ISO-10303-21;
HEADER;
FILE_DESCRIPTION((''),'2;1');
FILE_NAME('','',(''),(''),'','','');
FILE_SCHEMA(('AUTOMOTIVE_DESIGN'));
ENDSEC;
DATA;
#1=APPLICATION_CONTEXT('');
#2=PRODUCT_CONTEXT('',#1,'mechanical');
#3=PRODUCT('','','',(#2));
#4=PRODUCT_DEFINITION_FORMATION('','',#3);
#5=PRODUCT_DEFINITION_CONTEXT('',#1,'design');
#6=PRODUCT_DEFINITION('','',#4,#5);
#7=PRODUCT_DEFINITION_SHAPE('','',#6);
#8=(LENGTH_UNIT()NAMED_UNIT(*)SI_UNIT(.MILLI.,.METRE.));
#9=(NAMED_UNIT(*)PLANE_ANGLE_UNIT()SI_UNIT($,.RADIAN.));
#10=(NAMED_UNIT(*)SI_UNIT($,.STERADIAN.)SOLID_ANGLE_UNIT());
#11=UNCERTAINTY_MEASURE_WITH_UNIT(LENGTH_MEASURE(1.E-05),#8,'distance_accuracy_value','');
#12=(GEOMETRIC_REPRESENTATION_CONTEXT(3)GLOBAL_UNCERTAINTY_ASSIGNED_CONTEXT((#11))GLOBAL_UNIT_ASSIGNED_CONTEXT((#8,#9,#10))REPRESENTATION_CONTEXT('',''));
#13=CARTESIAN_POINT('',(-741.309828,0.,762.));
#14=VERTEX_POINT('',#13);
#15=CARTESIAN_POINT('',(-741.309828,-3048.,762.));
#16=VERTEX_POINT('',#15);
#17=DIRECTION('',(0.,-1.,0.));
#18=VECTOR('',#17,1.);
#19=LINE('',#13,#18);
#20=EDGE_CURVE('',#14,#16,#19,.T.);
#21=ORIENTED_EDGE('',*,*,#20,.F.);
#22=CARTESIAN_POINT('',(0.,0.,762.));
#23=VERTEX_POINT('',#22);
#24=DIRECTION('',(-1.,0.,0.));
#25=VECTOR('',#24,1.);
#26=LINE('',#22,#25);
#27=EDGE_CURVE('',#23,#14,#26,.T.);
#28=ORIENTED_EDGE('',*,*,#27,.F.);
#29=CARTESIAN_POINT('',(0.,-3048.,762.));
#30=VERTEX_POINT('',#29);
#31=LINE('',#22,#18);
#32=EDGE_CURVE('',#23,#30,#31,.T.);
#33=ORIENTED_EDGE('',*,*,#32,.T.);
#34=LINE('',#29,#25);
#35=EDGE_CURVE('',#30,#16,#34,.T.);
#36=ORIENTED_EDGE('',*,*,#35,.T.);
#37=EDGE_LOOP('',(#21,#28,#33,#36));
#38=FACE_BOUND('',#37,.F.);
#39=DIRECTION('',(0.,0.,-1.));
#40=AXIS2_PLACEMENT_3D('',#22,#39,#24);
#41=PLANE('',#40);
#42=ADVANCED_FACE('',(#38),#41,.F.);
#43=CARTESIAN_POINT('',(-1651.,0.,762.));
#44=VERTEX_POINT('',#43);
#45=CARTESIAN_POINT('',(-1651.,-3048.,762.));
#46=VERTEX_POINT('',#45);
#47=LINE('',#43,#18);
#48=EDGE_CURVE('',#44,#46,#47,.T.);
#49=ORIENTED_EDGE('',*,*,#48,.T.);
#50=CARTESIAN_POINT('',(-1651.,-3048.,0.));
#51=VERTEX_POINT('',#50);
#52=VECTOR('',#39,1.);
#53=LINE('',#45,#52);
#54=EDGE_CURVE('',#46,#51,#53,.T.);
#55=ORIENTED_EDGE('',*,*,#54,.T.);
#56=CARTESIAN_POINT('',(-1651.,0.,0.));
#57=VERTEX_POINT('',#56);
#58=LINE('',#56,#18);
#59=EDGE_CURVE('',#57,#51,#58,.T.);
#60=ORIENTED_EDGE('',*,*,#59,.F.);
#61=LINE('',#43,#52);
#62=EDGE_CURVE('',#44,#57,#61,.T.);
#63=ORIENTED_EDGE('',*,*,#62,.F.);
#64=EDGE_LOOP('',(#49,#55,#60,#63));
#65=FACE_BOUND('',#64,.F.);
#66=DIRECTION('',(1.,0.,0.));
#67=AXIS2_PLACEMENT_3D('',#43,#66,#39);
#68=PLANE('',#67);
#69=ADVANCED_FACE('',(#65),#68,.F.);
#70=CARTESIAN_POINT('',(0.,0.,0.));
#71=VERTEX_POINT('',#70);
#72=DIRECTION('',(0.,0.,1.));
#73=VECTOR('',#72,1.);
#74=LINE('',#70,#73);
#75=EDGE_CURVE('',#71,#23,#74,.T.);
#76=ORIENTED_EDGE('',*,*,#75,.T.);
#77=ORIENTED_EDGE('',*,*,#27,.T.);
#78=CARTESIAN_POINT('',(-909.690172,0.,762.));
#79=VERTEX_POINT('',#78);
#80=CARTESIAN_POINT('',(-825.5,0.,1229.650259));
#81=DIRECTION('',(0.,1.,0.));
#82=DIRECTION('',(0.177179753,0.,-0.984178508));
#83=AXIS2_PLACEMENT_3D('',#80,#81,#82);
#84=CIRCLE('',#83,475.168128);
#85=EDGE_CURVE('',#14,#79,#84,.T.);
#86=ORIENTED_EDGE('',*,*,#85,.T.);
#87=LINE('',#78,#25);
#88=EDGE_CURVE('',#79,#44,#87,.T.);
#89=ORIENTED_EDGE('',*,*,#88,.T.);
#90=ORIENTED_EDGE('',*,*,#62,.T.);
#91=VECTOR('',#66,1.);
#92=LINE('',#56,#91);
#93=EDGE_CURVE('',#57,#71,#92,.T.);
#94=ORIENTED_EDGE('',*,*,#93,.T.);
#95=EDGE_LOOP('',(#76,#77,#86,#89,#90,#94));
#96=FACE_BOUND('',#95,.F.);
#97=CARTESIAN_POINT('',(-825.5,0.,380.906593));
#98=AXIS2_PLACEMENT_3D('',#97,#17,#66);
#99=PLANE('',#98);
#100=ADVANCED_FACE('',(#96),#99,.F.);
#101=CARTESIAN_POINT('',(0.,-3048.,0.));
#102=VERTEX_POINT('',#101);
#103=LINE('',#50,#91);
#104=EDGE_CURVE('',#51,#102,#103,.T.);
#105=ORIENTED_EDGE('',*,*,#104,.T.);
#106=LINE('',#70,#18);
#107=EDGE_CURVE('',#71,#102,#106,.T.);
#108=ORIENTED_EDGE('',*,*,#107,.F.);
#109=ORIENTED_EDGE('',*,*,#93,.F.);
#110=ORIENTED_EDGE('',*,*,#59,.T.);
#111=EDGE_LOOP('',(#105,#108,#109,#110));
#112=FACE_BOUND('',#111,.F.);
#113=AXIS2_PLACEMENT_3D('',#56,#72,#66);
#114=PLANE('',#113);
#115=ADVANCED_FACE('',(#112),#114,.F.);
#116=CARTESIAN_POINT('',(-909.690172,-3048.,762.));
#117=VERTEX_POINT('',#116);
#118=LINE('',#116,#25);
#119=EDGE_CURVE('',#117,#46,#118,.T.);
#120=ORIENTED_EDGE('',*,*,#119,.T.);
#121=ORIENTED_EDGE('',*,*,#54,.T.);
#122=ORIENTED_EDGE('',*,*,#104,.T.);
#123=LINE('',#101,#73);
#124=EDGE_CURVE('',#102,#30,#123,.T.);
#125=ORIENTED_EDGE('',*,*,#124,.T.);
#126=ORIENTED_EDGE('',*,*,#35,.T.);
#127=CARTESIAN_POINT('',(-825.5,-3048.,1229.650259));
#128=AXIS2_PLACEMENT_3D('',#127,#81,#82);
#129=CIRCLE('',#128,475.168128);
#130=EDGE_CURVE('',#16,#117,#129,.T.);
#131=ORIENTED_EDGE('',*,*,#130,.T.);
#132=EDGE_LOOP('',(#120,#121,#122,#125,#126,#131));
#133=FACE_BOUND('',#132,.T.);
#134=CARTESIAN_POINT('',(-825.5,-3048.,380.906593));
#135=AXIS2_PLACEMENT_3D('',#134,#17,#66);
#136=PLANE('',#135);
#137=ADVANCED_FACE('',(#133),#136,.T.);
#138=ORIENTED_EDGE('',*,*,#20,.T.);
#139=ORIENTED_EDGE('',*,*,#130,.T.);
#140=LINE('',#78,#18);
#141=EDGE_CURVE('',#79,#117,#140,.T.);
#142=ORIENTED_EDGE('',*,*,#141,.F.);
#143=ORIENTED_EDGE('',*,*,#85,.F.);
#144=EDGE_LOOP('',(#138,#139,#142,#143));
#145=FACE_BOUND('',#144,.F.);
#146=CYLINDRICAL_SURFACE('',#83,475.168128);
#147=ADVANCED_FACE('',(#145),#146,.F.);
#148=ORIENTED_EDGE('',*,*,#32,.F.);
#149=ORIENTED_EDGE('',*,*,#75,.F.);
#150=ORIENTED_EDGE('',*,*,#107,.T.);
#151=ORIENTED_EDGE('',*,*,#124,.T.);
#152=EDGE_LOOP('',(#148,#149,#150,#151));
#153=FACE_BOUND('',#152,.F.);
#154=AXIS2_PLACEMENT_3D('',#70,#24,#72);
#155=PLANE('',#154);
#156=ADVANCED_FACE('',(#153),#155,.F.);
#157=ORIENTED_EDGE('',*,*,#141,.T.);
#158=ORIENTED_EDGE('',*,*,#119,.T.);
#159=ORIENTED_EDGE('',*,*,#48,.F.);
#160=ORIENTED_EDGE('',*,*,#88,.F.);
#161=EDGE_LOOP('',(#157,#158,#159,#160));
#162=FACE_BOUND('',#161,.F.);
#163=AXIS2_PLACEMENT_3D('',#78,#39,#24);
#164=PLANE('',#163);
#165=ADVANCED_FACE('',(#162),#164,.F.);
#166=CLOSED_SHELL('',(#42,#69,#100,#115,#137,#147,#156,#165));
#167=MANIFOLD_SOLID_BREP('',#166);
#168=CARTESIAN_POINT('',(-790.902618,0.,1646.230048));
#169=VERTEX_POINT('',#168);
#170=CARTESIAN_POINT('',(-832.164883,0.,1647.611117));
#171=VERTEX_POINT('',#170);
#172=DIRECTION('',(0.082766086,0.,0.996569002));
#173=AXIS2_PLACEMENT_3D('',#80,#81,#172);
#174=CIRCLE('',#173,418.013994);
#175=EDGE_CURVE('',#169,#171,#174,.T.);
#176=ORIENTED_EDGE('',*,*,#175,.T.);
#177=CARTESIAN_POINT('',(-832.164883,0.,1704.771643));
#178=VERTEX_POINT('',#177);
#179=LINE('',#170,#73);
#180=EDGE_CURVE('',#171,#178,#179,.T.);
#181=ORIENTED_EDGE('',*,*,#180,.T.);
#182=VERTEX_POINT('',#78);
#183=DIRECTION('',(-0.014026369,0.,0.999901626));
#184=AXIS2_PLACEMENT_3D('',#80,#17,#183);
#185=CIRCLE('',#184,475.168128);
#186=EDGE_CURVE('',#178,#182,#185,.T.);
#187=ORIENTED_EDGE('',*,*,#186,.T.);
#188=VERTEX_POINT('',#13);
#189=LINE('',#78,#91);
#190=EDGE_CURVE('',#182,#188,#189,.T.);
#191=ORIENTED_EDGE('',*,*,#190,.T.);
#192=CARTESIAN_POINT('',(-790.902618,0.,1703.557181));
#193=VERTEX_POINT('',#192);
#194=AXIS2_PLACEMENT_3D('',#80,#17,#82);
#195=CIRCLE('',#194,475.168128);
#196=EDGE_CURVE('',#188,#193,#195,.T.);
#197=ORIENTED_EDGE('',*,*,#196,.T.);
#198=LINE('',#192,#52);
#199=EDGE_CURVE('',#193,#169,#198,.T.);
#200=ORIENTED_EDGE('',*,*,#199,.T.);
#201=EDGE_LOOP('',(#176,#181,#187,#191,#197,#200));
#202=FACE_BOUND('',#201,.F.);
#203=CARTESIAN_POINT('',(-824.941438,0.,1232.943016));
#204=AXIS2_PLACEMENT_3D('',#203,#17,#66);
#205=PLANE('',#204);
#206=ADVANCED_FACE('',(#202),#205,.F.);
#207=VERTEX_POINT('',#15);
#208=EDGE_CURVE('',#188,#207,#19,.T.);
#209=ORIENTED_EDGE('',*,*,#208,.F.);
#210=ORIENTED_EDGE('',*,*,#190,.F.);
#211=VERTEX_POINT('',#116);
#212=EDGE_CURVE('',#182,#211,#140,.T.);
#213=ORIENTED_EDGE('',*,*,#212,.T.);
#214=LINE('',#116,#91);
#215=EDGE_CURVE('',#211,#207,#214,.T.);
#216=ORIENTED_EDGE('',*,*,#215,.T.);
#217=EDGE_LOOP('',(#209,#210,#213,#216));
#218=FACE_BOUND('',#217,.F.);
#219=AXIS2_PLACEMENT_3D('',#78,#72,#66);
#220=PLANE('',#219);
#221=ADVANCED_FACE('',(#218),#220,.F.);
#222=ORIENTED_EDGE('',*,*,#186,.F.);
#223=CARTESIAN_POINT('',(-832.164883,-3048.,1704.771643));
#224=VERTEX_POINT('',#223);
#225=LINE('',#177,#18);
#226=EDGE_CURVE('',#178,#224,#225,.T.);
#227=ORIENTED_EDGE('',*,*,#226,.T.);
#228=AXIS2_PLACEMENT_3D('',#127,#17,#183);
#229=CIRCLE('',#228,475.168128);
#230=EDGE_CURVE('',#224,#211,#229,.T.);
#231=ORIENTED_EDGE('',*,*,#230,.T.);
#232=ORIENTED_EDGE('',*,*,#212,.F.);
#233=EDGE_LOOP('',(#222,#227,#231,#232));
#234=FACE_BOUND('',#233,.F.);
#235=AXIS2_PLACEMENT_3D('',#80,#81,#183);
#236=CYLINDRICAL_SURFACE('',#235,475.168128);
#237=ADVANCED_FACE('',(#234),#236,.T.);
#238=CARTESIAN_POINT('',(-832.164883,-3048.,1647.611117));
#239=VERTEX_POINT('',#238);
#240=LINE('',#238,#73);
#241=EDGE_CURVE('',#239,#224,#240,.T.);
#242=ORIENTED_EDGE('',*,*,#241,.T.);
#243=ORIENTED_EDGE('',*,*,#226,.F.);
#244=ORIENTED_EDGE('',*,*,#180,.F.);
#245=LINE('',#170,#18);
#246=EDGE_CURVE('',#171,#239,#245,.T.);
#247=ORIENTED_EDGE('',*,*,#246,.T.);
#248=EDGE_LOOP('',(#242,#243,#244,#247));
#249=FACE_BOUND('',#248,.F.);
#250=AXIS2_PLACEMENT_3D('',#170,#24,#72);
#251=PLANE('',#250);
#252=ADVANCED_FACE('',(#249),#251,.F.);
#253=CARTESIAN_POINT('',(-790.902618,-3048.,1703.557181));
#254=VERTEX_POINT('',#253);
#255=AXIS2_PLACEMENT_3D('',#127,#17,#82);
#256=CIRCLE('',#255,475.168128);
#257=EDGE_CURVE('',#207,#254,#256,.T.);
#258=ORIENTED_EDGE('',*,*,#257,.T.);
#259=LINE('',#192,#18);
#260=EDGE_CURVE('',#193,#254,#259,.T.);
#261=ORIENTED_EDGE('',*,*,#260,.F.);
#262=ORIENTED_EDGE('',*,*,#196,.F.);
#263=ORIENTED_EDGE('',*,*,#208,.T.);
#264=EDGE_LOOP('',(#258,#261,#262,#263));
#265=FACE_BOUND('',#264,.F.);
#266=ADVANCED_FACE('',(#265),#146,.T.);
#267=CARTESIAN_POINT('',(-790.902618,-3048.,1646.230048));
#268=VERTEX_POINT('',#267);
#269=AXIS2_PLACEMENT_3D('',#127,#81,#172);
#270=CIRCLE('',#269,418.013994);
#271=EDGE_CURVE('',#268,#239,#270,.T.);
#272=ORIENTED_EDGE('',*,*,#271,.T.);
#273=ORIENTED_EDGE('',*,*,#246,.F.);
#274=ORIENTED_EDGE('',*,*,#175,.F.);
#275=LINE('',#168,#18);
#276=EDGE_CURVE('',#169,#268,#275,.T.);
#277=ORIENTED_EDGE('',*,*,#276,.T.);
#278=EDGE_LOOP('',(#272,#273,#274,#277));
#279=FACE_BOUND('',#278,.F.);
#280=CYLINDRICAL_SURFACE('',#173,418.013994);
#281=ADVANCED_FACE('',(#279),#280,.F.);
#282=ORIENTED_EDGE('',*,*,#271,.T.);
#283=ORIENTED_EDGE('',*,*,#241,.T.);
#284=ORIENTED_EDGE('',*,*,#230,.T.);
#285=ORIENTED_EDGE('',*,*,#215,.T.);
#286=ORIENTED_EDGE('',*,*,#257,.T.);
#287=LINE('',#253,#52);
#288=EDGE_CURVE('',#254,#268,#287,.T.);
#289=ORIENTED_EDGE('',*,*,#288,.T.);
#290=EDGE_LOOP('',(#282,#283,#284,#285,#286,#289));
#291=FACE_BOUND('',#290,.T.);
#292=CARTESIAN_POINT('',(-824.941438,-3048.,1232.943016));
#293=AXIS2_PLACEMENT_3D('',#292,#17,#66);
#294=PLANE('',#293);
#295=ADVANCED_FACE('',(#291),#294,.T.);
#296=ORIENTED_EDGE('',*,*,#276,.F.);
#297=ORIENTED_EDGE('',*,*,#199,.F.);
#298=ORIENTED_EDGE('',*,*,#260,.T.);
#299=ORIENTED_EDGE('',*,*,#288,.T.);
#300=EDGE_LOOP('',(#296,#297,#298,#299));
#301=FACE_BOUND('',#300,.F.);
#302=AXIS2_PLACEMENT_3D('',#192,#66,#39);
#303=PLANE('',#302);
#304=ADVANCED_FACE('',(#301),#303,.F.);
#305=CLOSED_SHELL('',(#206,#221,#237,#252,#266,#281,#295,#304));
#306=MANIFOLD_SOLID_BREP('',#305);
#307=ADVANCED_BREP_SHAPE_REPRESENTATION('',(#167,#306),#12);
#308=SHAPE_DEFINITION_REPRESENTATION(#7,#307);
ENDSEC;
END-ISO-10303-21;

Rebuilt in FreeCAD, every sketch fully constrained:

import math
import FreeCAD as App
import Part
import Sketcher

V = App.Vector
Q = App.Units.Quantity

doc = App.newDocument("Part")
body = doc.addObject("PartDesign::Body", "Body")

sketch1 = body.newObject("Sketcher::SketchObject", "Sketch")
sketch1.AttachmentSupport = (doc.getObject("XZ_Plane"), [""])
sketch1.MapMode = "FlatFace"
sketch1.addGeometry([
    Part.LineSegment(V(-909.690172, 762, 0), V(-741.309828, 762, 0)),
    Part.ArcOfCircle(Part.Circle(V(-825.5, 1229.650259, 0), V(0, 0, 1), 475.168128), math.radians(-79.794469), math.radians(85.824552)),
    Part.LineSegment(V(-790.902618, 1703.557181, 0), V(-790.902618, 1646.230048, 0)),
    Part.ArcOfCircle(Part.Circle(V(-825.5, 1229.650259, 0), V(0, 0, 1), 418.013994), math.radians(90.913572), math.radians(445.252422)),
    Part.LineSegment(V(-832.164883, 1647.611117, 0), V(-832.164883, 1704.771643, 0)),
    Part.ArcOfCircle(Part.Circle(V(-825.5, 1229.650259, 0), V(0, 0, 1), 475.168128), math.radians(90.803678), math.radians(259.794469)),
], False)
sketch1.addConstraint([
    Sketcher.Constraint("Coincident", 0, 2, 1, 1),
    Sketcher.Constraint("Coincident", 1, 2, 2, 1),
    Sketcher.Constraint("Coincident", 2, 2, 3, 2),
    Sketcher.Constraint("Coincident", 3, 1, 4, 1),
    Sketcher.Constraint("Coincident", 4, 2, 5, 1),
    Sketcher.Constraint("Coincident", 5, 2, 0, 1),
    Sketcher.Constraint("Horizontal", 0),
    Sketcher.Constraint("Vertical", 2),
    Sketcher.Constraint("Vertical", 4),
    Sketcher.Constraint("Coincident", 3, 3, 1, 3),
    Sketcher.Constraint("Coincident", 5, 3, 1, 3),
    Sketcher.Constraint("Equal", 1, 5),
    Sketcher.Constraint("DistanceY", -1, 1, 0, 2, Q("30 in")),
    Sketcher.Constraint("DistanceX", 1, 3, -1, 1, Q("32.5 in")),
    Sketcher.Constraint("Radius", 1, Q("475.168128 mm")),
    Sketcher.Constraint("Radius", 3, Q("418.013994 mm")),
    Sketcher.Constraint("DistanceX", 0, 1, 0, 2, Q("168.380343 mm")),
    Sketcher.Constraint("DistanceY", 2, 2, 2, 1, Q("57.327133 mm")),
    Sketcher.Constraint("DistanceX", 4, 2, -1, 1, Q("832.164883 mm")),
])
pad1 = body.newObject("PartDesign::Pad", "Pad")
pad1.Profile = sketch1
pad1.Length = Q("120 in")
body2 = doc.addObject("PartDesign::Body", "Body001")

sketch2 = body2.newObject("Sketcher::SketchObject", "Sketch001")
sketch2.AttachmentSupport = (doc.getObject("XZ_Plane001"), [""])
sketch2.MapMode = "FlatFace"
sketch2.addGeometry([
    Part.LineSegment(V(-1651, 0, 0), V(0, 0, 0)),
    Part.LineSegment(V(0, 0, 0), V(0, 762, 0)),
    Part.LineSegment(V(0, 762, 0), V(-741, 762, 0)),
    Part.ArcOfCircle(Part.Circle(V(-826, 1230, 0), V(0, 0, 1), 475), math.radians(-100), math.radians(-80)),
    Part.LineSegment(V(-910, 762, 0), V(-1651, 762, 0)),
    Part.LineSegment(V(-1651, 762, 0), V(-1651, 0, 0)),
], False)
sketch2.addConstraint([
    Sketcher.Constraint("Coincident", 0, 2, 1, 1),
    Sketcher.Constraint("Coincident", 1, 2, 2, 1),
    Sketcher.Constraint("Coincident", 2, 2, 3, 2),
    Sketcher.Constraint("Coincident", 3, 1, 4, 1),
    Sketcher.Constraint("Coincident", 4, 2, 5, 1),
    Sketcher.Constraint("Coincident", 5, 2, 0, 1),
    Sketcher.Constraint("Horizontal", 0),
    Sketcher.Constraint("Vertical", 1),
    Sketcher.Constraint("Horizontal", 2),
    Sketcher.Constraint("Horizontal", 4),
    Sketcher.Constraint("Vertical", 5),
    Sketcher.Constraint("Coincident", 0, 2, -1, 1),
    Sketcher.Constraint("Horizontal", 2, 2, 3, 1),
    Sketcher.Constraint("Equal", 2, 4),
    Sketcher.Constraint("DistanceX", 0, 1, 0, 2, Q("65 in")),
    Sketcher.Constraint("DistanceY", 1, 1, 1, 2, Q("30 in")),
    Sketcher.Constraint("Radius", 3, Q("475.168128 mm")),
    Sketcher.Constraint("DistanceX", 2, 2, 2, 1, Q("741.309828 mm")),
])
pad2 = body2.newObject("PartDesign::Pad", "Pad001")
pad2.Profile = sketch2
pad2.Length = Q("120 in")

doc.recompute()
